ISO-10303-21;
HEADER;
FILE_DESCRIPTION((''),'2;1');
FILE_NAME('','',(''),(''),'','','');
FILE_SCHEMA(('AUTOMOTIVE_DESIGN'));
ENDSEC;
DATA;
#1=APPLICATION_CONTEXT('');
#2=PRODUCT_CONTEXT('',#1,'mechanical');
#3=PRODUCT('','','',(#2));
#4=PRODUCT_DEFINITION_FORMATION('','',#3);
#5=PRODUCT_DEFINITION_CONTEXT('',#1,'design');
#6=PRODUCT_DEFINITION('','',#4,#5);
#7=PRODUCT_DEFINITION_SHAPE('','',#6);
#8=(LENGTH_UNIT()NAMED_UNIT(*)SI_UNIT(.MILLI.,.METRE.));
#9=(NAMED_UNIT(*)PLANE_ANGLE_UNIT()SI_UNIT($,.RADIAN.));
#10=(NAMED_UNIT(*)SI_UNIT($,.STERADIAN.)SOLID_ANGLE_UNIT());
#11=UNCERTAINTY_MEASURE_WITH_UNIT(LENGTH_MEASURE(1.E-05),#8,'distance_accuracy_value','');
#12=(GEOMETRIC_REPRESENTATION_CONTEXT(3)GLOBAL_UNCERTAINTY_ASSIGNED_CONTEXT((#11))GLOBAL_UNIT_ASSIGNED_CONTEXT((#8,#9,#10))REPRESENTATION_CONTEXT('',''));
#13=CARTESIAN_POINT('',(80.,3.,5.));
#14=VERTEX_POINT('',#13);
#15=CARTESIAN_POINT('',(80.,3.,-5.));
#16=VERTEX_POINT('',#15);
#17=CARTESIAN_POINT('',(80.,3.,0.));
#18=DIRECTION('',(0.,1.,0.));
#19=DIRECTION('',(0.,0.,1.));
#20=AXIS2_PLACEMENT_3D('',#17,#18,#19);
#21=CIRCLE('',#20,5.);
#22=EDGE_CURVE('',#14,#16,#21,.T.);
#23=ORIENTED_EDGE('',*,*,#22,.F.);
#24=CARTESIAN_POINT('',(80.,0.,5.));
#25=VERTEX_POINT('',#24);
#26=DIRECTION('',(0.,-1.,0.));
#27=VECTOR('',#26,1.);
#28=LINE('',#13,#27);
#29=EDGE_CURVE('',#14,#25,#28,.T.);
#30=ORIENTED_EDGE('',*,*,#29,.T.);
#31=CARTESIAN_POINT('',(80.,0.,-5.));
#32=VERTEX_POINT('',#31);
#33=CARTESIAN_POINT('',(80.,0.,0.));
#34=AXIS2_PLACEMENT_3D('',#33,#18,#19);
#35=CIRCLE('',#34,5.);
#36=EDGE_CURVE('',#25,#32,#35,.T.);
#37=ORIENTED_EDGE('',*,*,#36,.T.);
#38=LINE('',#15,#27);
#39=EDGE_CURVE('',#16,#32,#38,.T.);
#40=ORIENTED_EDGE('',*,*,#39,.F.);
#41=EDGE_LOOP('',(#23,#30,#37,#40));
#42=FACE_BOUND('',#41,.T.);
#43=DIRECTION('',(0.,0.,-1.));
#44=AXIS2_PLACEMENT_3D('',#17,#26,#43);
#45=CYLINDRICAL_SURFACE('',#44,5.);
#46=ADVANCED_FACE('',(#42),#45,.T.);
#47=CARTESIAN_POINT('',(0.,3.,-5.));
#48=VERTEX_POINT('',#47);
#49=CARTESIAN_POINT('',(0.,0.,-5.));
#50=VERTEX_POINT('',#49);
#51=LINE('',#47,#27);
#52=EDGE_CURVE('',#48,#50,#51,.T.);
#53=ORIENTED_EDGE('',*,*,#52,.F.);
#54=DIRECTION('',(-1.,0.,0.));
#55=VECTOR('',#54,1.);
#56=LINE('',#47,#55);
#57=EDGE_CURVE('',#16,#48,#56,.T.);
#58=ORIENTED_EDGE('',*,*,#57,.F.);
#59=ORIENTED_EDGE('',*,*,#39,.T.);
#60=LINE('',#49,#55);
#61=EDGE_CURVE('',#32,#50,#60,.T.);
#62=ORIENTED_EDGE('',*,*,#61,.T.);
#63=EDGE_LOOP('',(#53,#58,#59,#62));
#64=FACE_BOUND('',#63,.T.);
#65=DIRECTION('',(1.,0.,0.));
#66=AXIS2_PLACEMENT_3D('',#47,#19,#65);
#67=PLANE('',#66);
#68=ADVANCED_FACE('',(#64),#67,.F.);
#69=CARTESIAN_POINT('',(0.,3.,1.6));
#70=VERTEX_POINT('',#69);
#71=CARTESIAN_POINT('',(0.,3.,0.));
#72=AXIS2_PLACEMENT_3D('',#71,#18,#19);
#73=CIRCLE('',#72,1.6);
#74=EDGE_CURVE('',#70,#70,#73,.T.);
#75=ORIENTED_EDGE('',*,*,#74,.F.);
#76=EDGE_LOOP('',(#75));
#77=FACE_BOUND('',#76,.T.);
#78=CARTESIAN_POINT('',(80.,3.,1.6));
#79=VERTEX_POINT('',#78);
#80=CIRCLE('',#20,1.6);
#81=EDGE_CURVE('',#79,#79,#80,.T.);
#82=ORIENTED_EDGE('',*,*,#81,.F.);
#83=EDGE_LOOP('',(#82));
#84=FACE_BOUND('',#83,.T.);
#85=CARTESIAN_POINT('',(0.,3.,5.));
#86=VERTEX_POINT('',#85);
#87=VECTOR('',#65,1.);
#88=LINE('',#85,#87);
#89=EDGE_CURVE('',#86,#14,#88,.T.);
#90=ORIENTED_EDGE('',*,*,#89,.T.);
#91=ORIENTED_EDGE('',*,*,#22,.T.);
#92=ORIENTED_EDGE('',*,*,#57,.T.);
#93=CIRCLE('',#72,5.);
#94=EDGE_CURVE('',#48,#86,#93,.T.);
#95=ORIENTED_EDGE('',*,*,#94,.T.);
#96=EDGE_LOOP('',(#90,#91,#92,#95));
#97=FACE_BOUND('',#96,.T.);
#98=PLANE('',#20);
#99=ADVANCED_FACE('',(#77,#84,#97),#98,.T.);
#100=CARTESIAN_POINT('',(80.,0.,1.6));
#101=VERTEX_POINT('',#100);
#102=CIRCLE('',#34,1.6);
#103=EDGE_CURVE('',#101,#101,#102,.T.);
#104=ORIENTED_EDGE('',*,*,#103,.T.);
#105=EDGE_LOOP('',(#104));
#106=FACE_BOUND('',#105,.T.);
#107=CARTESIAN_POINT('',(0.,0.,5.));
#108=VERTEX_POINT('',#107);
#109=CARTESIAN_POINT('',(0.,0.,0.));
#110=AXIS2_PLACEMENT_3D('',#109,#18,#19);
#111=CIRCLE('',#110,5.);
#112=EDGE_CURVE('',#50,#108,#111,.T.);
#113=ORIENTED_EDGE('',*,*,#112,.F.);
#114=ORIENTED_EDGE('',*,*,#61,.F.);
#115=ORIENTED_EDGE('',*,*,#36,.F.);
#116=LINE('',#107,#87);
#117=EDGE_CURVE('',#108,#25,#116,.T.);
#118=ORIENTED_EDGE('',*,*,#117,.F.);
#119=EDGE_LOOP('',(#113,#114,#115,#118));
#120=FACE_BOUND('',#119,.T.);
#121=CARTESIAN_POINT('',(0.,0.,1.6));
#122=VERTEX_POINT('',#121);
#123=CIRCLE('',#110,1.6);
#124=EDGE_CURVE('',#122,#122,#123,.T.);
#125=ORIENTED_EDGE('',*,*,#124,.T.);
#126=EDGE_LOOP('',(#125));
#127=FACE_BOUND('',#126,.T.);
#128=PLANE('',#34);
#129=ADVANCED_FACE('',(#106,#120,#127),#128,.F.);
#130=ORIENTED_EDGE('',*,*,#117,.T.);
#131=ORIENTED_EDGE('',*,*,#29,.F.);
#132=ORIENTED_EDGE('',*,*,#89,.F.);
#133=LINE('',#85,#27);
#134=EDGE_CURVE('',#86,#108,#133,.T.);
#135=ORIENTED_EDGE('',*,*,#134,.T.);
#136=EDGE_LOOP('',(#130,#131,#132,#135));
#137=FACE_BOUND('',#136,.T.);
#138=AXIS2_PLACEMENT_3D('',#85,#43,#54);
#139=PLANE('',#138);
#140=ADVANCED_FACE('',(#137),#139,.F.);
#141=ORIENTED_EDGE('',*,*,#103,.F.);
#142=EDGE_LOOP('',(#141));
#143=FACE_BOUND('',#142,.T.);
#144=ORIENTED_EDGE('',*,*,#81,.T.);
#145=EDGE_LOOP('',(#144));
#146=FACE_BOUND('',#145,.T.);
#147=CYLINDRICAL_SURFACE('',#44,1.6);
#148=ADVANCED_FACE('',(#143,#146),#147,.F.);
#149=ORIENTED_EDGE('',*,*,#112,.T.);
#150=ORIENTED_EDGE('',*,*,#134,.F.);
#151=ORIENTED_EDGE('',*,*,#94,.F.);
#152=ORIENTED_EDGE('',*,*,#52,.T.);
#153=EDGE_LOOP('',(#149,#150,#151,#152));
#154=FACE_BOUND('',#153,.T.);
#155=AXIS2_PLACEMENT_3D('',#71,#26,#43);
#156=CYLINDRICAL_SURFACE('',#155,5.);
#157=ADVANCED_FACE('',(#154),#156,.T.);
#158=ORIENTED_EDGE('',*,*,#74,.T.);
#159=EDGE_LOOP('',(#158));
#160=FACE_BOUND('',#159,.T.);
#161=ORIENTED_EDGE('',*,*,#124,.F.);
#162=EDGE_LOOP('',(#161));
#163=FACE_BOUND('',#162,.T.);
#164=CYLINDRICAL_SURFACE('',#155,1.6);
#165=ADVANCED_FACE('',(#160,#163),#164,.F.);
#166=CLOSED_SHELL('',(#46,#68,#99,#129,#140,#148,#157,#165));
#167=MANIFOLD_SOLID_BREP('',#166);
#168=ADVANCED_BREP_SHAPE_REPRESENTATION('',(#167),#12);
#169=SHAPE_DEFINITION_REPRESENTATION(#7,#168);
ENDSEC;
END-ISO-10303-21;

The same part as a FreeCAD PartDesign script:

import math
import FreeCAD as App
import Part
import Sketcher

V = App.Vector

doc = App.newDocument("Part")
body = doc.addObject("PartDesign::Body", "Body")

sketch1 = body.newObject("Sketcher::SketchObject", "Sketch")
sketch1.AttachmentSupport = (doc.getObject("XZ_Plane"), [""])
sketch1.MapMode = "FlatFace"
sketch1.addGeometry([
    Part.LineSegment(V(0, 5, 0), V(80, 5, 0)),
    Part.ArcOfCircle(Part.Circle(V(80, 0, 0), V(0, 0, 1), 5), math.radians(-90), math.radians(90)),
    Part.LineSegment(V(80, -5, 0), V(0, -5, 0)),
    Part.ArcOfCircle(Part.Circle(V(0, 0, 0), V(0, 0, 1), 5), math.radians(90), math.radians(270)),
    Part.Circle(V(0, 0, 0), V(0, 0, 1), 1.6),
    Part.Circle(V(80, 0, 0), V(0, 0, 1), 1.6),
], False)
sketch1.addConstraint([
    Sketcher.Constraint("Tangent", 0, 2, 1, 2),
    Sketcher.Constraint("Tangent", 1, 1, 2, 1),
    Sketcher.Constraint("Tangent", 2, 2, 3, 2),
    Sketcher.Constraint("Tangent", 3, 1, 0, 1),
    Sketcher.Constraint("Horizontal", 0),
    Sketcher.Constraint("Horizontal", 2),
    Sketcher.Constraint("Coincident", 3, 3, -1, 1),
    Sketcher.Constraint("Coincident", 4, 3, -1, 1),
    Sketcher.Constraint("Coincident", 5, 3, 1, 3),
    Sketcher.Constraint("Equal", 4, 5),
    Sketcher.Constraint("Radius", 1, 5.0),
    Sketcher.Constraint("Diameter", 4, 3.2),
    Sketcher.Constraint("DistanceX", 0, 1, 0, 2, 80.0),
])
pad1 = body.newObject("PartDesign::Pad", "Pad")
pad1.Profile = sketch1
pad1.Length = 3
pad1.Reversed = True

doc.recompute()
